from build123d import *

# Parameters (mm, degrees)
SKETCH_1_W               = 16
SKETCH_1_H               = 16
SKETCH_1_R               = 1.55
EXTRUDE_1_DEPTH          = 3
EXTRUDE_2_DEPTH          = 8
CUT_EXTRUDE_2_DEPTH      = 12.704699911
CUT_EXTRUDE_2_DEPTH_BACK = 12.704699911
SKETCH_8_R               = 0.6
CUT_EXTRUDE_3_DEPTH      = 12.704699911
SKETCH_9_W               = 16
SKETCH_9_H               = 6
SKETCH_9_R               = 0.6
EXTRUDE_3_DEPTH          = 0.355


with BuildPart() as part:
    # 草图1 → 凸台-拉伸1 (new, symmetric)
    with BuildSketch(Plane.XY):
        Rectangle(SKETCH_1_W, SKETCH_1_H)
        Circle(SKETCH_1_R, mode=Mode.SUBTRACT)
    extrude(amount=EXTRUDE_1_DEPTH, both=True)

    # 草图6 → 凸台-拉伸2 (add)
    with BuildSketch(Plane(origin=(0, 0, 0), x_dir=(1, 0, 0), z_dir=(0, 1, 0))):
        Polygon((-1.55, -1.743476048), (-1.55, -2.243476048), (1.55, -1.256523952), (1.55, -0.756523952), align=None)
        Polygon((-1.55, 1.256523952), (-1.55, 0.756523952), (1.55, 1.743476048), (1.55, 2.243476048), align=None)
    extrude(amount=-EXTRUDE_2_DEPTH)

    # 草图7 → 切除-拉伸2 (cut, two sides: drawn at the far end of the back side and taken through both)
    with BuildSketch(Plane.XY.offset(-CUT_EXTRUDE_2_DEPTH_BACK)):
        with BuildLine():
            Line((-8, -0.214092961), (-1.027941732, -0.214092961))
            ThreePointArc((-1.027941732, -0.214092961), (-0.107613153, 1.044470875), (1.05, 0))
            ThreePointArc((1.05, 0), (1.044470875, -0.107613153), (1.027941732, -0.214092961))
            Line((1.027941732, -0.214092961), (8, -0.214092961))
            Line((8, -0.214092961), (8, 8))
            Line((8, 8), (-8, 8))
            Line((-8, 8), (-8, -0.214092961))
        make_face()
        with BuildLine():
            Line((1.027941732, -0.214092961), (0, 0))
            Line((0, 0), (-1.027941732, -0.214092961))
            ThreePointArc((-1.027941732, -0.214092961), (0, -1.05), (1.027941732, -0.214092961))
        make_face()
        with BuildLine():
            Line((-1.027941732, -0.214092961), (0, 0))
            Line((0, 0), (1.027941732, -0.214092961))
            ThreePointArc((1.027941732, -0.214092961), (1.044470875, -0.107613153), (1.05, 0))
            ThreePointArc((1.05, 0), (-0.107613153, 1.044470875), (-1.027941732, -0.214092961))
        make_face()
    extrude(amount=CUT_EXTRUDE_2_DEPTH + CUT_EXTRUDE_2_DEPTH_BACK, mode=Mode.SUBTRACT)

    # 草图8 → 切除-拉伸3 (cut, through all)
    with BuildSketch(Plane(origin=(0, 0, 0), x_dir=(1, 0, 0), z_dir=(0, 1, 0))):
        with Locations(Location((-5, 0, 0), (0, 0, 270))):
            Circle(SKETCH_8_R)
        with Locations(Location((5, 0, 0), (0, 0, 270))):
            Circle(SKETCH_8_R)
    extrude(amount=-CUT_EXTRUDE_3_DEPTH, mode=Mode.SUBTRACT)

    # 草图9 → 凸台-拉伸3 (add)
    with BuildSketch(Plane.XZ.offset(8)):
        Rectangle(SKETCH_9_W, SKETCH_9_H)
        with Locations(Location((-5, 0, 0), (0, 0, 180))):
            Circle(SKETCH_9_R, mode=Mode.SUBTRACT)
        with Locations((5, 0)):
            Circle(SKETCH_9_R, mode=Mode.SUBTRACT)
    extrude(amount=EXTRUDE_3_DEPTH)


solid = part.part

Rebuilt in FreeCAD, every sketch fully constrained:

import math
import FreeCAD as App
import Part
import Sketcher
from FreeCAD import Vector
Q = App.Units.Quantity


def add_polygon(sketch, points):
    """Adds a closed chain of lines whose ends are joined by coincident constraints."""
    first, n = sketch.GeometryCount, len(points)
    for a, b in zip(points, points[1:] + points[:1]):
        sketch.addGeometry(Part.LineSegment(App.Vector(*a, 0), App.Vector(*b, 0)), False)
    for i in range(n):
        sketch.addConstraint(Sketcher.Constraint("Coincident", first + i, 2, first + (i + 1) % n, 1))

doc = App.newDocument("Part")
body = doc.addObject("PartDesign::Body", "Body")

# Sketch on XY plane
sketch1 = body.newObject("Sketcher::SketchObject", "Sketch")
sketch1.AttachmentSupport = (doc.getObject("XY_Plane"), [""])
sketch1.MapMode = "FlatFace"
add_polygon(sketch1, [(-8, 8), (-8, -8), (8, -8), (8, 8)])  # lines 0-3
sketch1.addGeometry(Part.Circle(Vector(0, 0, 0), Vector(0, 0, 1), 1.6), False)  # 4
sketch1.addConstraint([
    Sketcher.Constraint("Vertical", 0),
    Sketcher.Constraint("Horizontal", 1),
    Sketcher.Constraint("Vertical", 2),
    Sketcher.Constraint("Horizontal", 3),
    Sketcher.Constraint("Coincident", 4, 3, -1, 1),
    Sketcher.Constraint("Symmetric", 0, 2, 2, 2, -1, 1),
    Sketcher.Constraint("Equal", 3, 0),
    Sketcher.Constraint("Diameter", 4, 3.1),
    Sketcher.Constraint("DistanceX", 1, 1, 1, 2, 16.0),
])
pad1 = body.newObject("PartDesign::Pad", "Pad")
pad1.Profile = sketch1
pad1.Length = 6
pad1.Midplane = True

# Sketch on XZ plane
sketch2 = body.newObject("Sketcher::SketchObject", "Sketch001")
sketch2.AttachmentSupport = (doc.getObject("XZ_Plane"), [""])
sketch2.MapMode = "FlatFace"
add_polygon(sketch2, [(-1.55, 1.74), (-1.55, 2.24), (1.55, 1.26), (1.55, 0.76)])  # lines 0-3
add_polygon(sketch2, [(-1.55, -1.26), (-1.55, -0.76), (1.55, -1.74), (1.55, -2.24)])  # lines 4-7
sketch2.addConstraint([
    Sketcher.Constraint("Vertical", 0),
    Sketcher.Constraint("Vertical", 2),
    Sketcher.Constraint("Vertical", 4),
    Sketcher.Constraint("Vertical", 6),
    Sketcher.Constraint("Symmetric", 2, 2, 4, 2, -1, 1),
    Sketcher.Constraint("Symmetric", 3, 2, 5, 2, -1, 1),
    Sketcher.Constraint("Parallel", 1, 3),
    Sketcher.Constraint("Parallel", 5, 7),
    Sketcher.Constraint("Vertical", 3, 2, 4, 2),
    Sketcher.Constraint("Equal", 2, 4),
    Sketcher.Constraint("DistanceY", 0, 1, 0, 2, 0.5),
    Sketcher.Constraint("DistanceY", 4, 2, 0, 2, 3.0),
    Sketcher.Constraint("Angle", 1, Q("-17.66 deg")),
    Sketcher.Constraint("DistanceX", 0, 2, 1, 2, 3.1),
])
pad2 = body.newObject("PartDesign::Pad", "Pad001")
pad2.Profile = sketch2
pad2.Length = 8

# Sketch on XY plane
sketch3 = body.newObject("Sketcher::SketchObject", "Sketch002")
sketch3.AttachmentSupport = (doc.getObject("XY_Plane"), [""])
sketch3.MapMode = "FlatFace"
sketch3.addGeometry([
    Part.LineSegment(Vector(8, 8, 0), Vector(-8, 8, 0)),  # 0
    Part.LineSegment(Vector(-8, 8, 0), Vector(-8, -0.2, 0)),  # 1
    Part.LineSegment(Vector(-8, -0.2, 0), Vector(-1, -0.2, 0)),  # 2
    Part.ArcOfCircle(Part.Circle(Vector(0, 0, 0), Vector(0, 0, 1), 1.1), math.radians(-168), math.radians(-12)),  # 3
    Part.LineSegment(Vector(1, -0.2, 0), Vector(8, -0.2, 0)),  # 4
    Part.LineSegment(Vector(8, -0.2, 0), Vector(8, 8, 0)),  # 5
], False)
sketch3.addConstraint([
    Sketcher.Constraint("Coincident", 0, 2, 1, 1),
    Sketcher.Constraint("Coincident", 1, 2, 2, 1),
    Sketcher.Constraint("Coincident", 2, 2, 3, 1),
    Sketcher.Constraint("Coincident", 3, 2, 4, 1),
    Sketcher.Constraint("Coincident", 4, 2, 5, 1),
    Sketcher.Constraint("Coincident", 5, 2, 0, 1),
    Sketcher.Constraint("Horizontal", 0),
    Sketcher.Constraint("Vertical", 1),
    Sketcher.Constraint("Horizontal", 2),
    Sketcher.Constraint("Horizontal", 4),
    Sketcher.Constraint("Vertical", 5),
    Sketcher.Constraint("Coincident", 3, 3, -1, 1),
    Sketcher.Constraint("Symmetric", 1, 2, 4, 2, -2),
    Sketcher.Constraint("DistanceX", 0, 2, 0, 1, 16.0),
    Sketcher.Constraint("Radius", 3, 1.05),
    Sketcher.Constraint("DistanceY", -1, 1, 0, 2, 8.0),
    Sketcher.Constraint("DistanceX", 2, 1, 2, 2, 6.972058),
])
pocket1 = body.newObject("PartDesign::Pocket", "Pocket")
pocket1.Profile = sketch3
pocket1.Type = "ThroughAll"
pocket1.Midplane = True

# Sketch on XZ plane
sketch4 = body.newObject("Sketcher::SketchObject", "Sketch003")
sketch4.AttachmentSupport = (doc.getObject("XZ_Plane"), [""])
sketch4.MapMode = "FlatFace"
sketch4.addGeometry([
    Part.Circle(Vector(-5, 0, 0), Vector(0, 0, 1), 0.6),
    Part.Circle(Vector(5, 0, 0), Vector(0, 0, 1), 0.6),
], False)
sketch4.addConstraint([
    Sketcher.Constraint("Equal", 0, 1),
    Sketcher.Constraint("Symmetric", 0, 3, 1, 3, -1, 1),
    Sketcher.Constraint("PointOnObject", 0, 3, -1),
    Sketcher.Constraint("Diameter", 0, 1.2),
    Sketcher.Constraint("DistanceX", 0, 3, -1, 1, 5.0),
])
pocket2 = body.newObject("PartDesign::Pocket", "Pocket001")
pocket2.Profile = sketch4
pocket2.Type = "ThroughAll"
pocket2.Reversed = True

# Sketch on XZ plane
sketch5 = body.newObject("Sketcher::SketchObject", "Sketch004")
sketch5.AttachmentSupport = (doc.getObject("XZ_Plane"), [""])
sketch5.MapMode = "FlatFace"
sketch5.AttachmentOffset = App.Placement(Vector(0, 0, 8), App.Rotation())
add_polygon(sketch5, [(-8, 3), (-8, -3), (8, -3), (8, 3)])  # lines 0-3
sketch5.addGeometry(Part.Circle(Vector(-5, 0, 0), Vector(0, 0, 1), 0.6), False)  # 4
sketch5.addGeometry(Part.Circle(Vector(5, 0, 0), Vector(0, 0, 1), 0.6), False)  # 5
sketch5.addConstraint([
    Sketcher.Constraint("Vertical", 0),
    Sketcher.Constraint("Horizontal", 1),
    Sketcher.Constraint("Vertical", 2),
    Sketcher.Constraint("Horizontal", 3),
    Sketcher.Constraint("Equal", 4, 5),
    Sketcher.Constraint("Symmetric", 4, 3, 5, 3, -1, 1),
    Sketcher.Constraint("Symmetric", 0, 2, 2, 2, -1, 1),
    Sketcher.Constraint("PointOnObject", 4, 3, -1),
    Sketcher.Constraint("Diameter", 4, 1.2),
    Sketcher.Constraint("DistanceX", 1, 1, 1, 2, 16.0),
    Sketcher.Constraint("DistanceY", 0, 2, 0, 1, 6.0),
    Sketcher.Constraint("DistanceX", 4, 3, -1, 1, 5.0),
])
pad3 = body.newObject("PartDesign::Pad", "Pad002")
pad3.Profile = sketch5
pad3.Length = 0.355

doc.recompute()
